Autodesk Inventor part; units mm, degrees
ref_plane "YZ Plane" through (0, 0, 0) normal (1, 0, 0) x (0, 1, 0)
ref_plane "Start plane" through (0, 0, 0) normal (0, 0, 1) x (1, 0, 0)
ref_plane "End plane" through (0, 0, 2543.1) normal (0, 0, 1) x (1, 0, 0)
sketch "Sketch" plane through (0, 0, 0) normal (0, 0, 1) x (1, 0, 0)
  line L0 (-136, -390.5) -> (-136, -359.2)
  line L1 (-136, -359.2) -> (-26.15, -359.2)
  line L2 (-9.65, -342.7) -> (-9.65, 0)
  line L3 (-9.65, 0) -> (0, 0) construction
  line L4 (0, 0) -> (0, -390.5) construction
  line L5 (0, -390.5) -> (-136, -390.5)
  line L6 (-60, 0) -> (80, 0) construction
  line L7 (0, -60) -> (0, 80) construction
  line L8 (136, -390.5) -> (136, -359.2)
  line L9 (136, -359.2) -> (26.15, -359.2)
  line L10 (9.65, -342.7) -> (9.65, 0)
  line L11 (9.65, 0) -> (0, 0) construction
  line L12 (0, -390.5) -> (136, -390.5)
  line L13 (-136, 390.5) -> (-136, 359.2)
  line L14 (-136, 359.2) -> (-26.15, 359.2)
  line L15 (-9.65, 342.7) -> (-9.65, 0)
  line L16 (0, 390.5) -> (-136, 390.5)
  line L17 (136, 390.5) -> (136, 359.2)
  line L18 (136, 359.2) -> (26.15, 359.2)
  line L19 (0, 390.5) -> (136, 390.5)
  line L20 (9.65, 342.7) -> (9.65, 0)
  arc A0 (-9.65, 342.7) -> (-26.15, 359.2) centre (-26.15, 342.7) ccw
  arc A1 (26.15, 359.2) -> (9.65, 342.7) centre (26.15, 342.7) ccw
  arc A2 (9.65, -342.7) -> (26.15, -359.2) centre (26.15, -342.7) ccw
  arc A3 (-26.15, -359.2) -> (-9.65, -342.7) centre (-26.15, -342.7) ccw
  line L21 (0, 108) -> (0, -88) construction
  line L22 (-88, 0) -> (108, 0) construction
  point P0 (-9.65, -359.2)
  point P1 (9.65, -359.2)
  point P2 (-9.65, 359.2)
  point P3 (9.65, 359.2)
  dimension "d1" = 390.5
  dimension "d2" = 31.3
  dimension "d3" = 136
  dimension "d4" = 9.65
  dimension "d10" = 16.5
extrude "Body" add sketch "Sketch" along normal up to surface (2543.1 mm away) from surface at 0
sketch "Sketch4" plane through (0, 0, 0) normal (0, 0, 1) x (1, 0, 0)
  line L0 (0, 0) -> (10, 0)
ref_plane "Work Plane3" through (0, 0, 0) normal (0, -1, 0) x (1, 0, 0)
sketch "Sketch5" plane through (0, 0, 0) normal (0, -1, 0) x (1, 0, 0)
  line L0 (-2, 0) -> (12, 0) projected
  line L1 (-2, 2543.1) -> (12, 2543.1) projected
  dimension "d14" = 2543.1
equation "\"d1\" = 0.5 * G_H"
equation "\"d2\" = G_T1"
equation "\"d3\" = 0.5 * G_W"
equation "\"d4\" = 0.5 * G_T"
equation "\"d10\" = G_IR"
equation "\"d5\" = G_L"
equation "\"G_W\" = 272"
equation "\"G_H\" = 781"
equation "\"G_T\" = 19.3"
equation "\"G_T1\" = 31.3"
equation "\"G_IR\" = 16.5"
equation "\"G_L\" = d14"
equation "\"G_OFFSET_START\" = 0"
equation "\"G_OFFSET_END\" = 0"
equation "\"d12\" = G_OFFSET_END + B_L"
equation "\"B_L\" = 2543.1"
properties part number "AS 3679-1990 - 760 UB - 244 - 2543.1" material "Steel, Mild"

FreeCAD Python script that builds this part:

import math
import FreeCAD as App
import Part
import Sketcher

V = App.Vector

doc = App.newDocument("Part")
body = doc.addObject("PartDesign::Body", "Body")

sketch1 = body.newObject("Sketcher::SketchObject", "Sketch")
sketch1.AttachmentSupport = (doc.getObject("XY_Plane"), [""])
sketch1.MapMode = "FlatFace"
sketch1.addGeometry(Part.LineSegment(V(-136, -359.2, 0), V(-136, -390.5, 0)), False)
sketch1.addGeometry(Part.LineSegment(V(-136, -390.5, 0), V(136, -390.5, 0)), False)
sketch1.addGeometry(Part.LineSegment(V(136, -390.5, 0), V(136, -359.2, 0)), False)
sketch1.addGeometry(Part.LineSegment(V(136, -359.2, 0), V(26.15, -359.2, 0)), False)
sketch1.addGeometry(Part.ArcOfCircle(Part.Circle(V(26.15, -342.7, 0), V(0, 0, 1), 16.5), math.radians(180), math.radians(270)), False)
sketch1.addGeometry(Part.LineSegment(V(9.65, -342.7, 0), V(9.65, 342.7, 0)), False)
sketch1.addGeometry(Part.ArcOfCircle(Part.Circle(V(26.15, 342.7, 0), V(0, 0, 1), 16.5), math.radians(90), math.radians(180)), False)
sketch1.addGeometry(Part.LineSegment(V(26.15, 359.2, 0), V(136, 359.2, 0)), False)
sketch1.addGeometry(Part.LineSegment(V(136, 359.2, 0), V(136, 390.5, 0)), False)
sketch1.addGeometry(Part.LineSegment(V(136, 390.5, 0), V(-136, 390.5, 0)), False)
sketch1.addGeometry(Part.LineSegment(V(-136, 390.5, 0), V(-136, 359.2, 0)), False)
sketch1.addGeometry(Part.LineSegment(V(-136, 359.2, 0), V(-26.15, 359.2, 0)), False)
sketch1.addGeometry(Part.ArcOfCircle(Part.Circle(V(-26.15, 342.7, 0), V(0, 0, 1), 16.5), math.radians(0), math.radians(90)), False)
sketch1.addGeometry(Part.LineSegment(V(-9.65, 342.7, 0), V(-9.65, -342.7, 0)), False)
sketch1.addGeometry(Part.ArcOfCircle(Part.Circle(V(-26.15, -342.7, 0), V(0, 0, 1), 16.5), math.radians(-90), math.radians(0)), False)
sketch1.addGeometry(Part.LineSegment(V(-26.15, -359.2, 0), V(-136, -359.2, 0)), False)
sketch1.addConstraint(Sketcher.Constraint("Coincident", 0, 2, 1, 1))
sketch1.addConstraint(Sketcher.Constraint("Coincident", 1, 2, 2, 1))
sketch1.addConstraint(Sketcher.Constraint("Coincident", 2, 2, 3, 1))
sketch1.addConstraint(Sketcher.Constraint("Tangent", 3, 2, 4, 2))
sketch1.addConstraint(Sketcher.Constraint("Tangent", 4, 1, 5, 1))
sketch1.addConstraint(Sketcher.Constraint("Tangent", 5, 2, 6, 2))
sketch1.addConstraint(Sketcher.Constraint("Tangent", 6, 1, 7, 1))
sketch1.addConstraint(Sketcher.Constraint("Coincident", 7, 2, 8, 1))
sketch1.addConstraint(Sketcher.Constraint("Coincident", 8, 2, 9, 1))
sketch1.addConstraint(Sketcher.Constraint("Coincident", 9, 2, 10, 1))
sketch1.addConstraint(Sketcher.Constraint("Coincident", 10, 2, 11, 1))
sketch1.addConstraint(Sketcher.Constraint("Tangent", 11, 2, 12, 2))
sketch1.addConstraint(Sketcher.Constraint("Tangent", 12, 1, 13, 1))
sketch1.addConstraint(Sketcher.Constraint("Tangent", 13, 2, 14, 2))
sketch1.addConstraint(Sketcher.Constraint("Tangent", 14, 1, 15, 1))
sketch1.addConstraint(Sketcher.Constraint("Coincident", 15, 2, 0, 1))
sketch1.addConstraint(Sketcher.Constraint("Vertical", 0))
sketch1.addConstraint(Sketcher.Constraint("Horizontal", 1))
sketch1.addConstraint(Sketcher.Constraint("Vertical", 2))
sketch1.addConstraint(Sketcher.Constraint("Horizontal", 3))
sketch1.addConstraint(Sketcher.Constraint("Vertical", 5))
sketch1.addConstraint(Sketcher.Constraint("Horizontal", 7))
sketch1.addConstraint(Sketcher.Constraint("Vertical", 8))
sketch1.addConstraint(Sketcher.Constraint("Horizontal", 9))
sketch1.addConstraint(Sketcher.Constraint("Vertical", 10))
sketch1.addConstraint(Sketcher.Constraint("Horizontal", 11))
sketch1.addConstraint(Sketcher.Constraint("Vertical", 13))
sketch1.addConstraint(Sketcher.Constraint("Horizontal", 15))
sketch1.addConstraint(Sketcher.Constraint("Equal", 4, 6))
sketch1.addConstraint(Sketcher.Constraint("Equal", 6, 12))
sketch1.addConstraint(Sketcher.Constraint("Equal", 12, 14))
sketch1.addConstraint(Sketcher.Constraint("Symmetric", 4, 3, 12, 3, -1, 1))
sketch1.addConstraint(Sketcher.Constraint("Symmetric", 0, 2, 8, 2, -1, 1))
sketch1.addConstraint(Sketcher.Constraint("Symmetric", 7, 2, 10, 2, -2))
sketch1.addConstraint(Sketcher.Constraint("Symmetric", 2, 2, 15, 2, -2))
sketch1.addConstraint(Sketcher.Constraint("Radius", 4, 16.5))
sketch1.addConstraint(Sketcher.Constraint("DistanceY", 0, 2, 0, 1, 31.3))
sketch1.addConstraint(Sketcher.Constraint("DistanceX", 0, 2, -1, 1, 136.0))
sketch1.addConstraint(Sketcher.Constraint("DistanceY", 0, 2, -1, 1, 390.5))
sketch1.addConstraint(Sketcher.Constraint("DistanceX", -1, 1, 4, 1, 9.65))
pad1 = body.newObject("PartDesign::Pad", "Pad")
pad1.Profile = sketch1
pad1.Length = 2543.1

doc.recompute()
